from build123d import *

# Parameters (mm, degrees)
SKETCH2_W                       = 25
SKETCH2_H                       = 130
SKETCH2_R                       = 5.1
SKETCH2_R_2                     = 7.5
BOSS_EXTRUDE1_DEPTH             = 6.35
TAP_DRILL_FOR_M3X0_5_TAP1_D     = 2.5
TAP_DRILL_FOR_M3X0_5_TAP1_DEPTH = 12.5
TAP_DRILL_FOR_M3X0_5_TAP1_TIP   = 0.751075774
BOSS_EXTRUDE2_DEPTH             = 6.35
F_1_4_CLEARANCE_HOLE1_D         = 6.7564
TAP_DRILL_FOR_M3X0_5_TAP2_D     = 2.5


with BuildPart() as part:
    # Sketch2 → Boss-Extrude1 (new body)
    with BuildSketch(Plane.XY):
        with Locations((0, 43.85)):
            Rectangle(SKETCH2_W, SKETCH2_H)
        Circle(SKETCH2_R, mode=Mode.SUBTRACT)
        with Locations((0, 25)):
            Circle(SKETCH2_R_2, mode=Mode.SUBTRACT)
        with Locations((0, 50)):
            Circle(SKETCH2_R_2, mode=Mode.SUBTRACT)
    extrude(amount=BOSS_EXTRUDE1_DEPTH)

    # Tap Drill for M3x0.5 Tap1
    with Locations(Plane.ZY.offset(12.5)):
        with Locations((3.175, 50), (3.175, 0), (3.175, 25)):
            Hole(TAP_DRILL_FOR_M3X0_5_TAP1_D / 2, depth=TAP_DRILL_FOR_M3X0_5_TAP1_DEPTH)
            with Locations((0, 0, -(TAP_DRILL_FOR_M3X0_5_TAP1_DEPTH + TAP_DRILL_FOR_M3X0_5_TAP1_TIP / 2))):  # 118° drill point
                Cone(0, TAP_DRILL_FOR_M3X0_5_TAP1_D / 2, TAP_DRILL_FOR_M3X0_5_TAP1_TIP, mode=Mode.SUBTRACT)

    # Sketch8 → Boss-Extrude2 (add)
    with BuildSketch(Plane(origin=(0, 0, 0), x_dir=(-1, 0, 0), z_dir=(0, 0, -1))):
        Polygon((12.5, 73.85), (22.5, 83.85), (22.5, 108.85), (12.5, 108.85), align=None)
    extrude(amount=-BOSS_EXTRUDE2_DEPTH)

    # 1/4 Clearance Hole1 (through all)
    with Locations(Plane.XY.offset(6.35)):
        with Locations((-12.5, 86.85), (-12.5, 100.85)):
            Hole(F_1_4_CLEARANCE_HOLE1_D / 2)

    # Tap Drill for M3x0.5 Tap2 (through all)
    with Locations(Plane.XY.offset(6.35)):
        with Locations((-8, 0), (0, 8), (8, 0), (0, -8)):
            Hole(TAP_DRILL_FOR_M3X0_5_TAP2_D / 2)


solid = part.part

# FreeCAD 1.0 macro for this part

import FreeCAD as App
import Part
import Sketcher

V = App.Vector


def add_polygon(sketch, points):
    """Adds a closed chain of lines whose ends are joined by coincident constraints."""
    first, n = sketch.GeometryCount, len(points)
    for a, b in zip(points, points[1:] + points[:1]):
        sketch.addGeometry(Part.LineSegment(App.Vector(*a, 0), App.Vector(*b, 0)), False)
    for i in range(n):
        sketch.addConstraint(Sketcher.Constraint("Coincident", first + i, 2, first + (i + 1) % n, 1))

doc = App.newDocument("Part")
body = doc.addObject("PartDesign::Body", "Body")

sketch1 = body.newObject("Sketcher::SketchObject", "Sketch")
sketch1.AttachmentSupport = (doc.getObject("XY_Plane"), [""])
sketch1.MapMode = "FlatFace"
add_polygon(sketch1, [(-12, 109), (-12, -21), (12, -21), (12, 109)])
sketch1.addGeometry(Part.Circle(V(0, 0, 0), V(0, 0, 1), 5), False)
sketch1.addGeometry(Part.Circle(V(0, 25, 0), V(0, 0, 1), 8), False)
sketch1.addGeometry(Part.Circle(V(0, 50, 0), V(0, 0, 1), 8), False)
sketch1.addConstraint(Sketcher.Constraint("Vertical", 0))
sketch1.addConstraint(Sketcher.Constraint("Horizontal", 1))
sketch1.addConstraint(Sketcher.Constraint("Vertical", 2))
sketch1.addConstraint(Sketcher.Constraint("Horizontal", 3))
sketch1.addConstraint(Sketcher.Constraint("Coincident", 4, 3, -1, 1))
sketch1.addConstraint(Sketcher.Constraint("Equal", 5, 6))
sketch1.addConstraint(Sketcher.Constraint("PointOnObject", 5, 3, -2))
sketch1.addConstraint(Sketcher.Constraint("PointOnObject", 6, 3, -2))
sketch1.addConstraint(Sketcher.Constraint("Diameter", 5, 15.0))
sketch1.addConstraint(Sketcher.Constraint("Diameter", 4, 10.2))
sketch1.addConstraint(Sketcher.Constraint("DistanceX", 1, 1, 1, 2, 25.0))
sketch1.addConstraint(Sketcher.Constraint("DistanceY", 0, 2, 0, 1, 130.0))
sketch1.addConstraint(Sketcher.Constraint("DistanceY", -1, 1, 5, 3, 25.0))
sketch1.addConstraint(Sketcher.Constraint("DistanceY", -1, 1, 6, 3, 50.0))
sketch1.addConstraint(Sketcher.Constraint("DistanceX", 0, 2, -1, 1, 12.5))
sketch1.addConstraint(Sketcher.Constraint("DistanceY", 0, 2, -1, 1, 21.15))
pad1 = body.newObject("PartDesign::Pad", "Pad")
pad1.Profile = sketch1
pad1.Length = 6.35

sketch2 = body.newObject("Sketcher::SketchObject", "Sketch001")
sketch2.AttachmentSupport = (doc.getObject("YZ_Plane"), [""])
sketch2.MapMode = "FlatFace"
sketch2.AttachmentOffset = App.Placement(V(0, 0, -12.5), App.Rotation())
sketch2.addGeometry(Part.Circle(V(50, 3.2, 0), V(0, 0, 1), 1.2), False)
sketch2.addGeometry(Part.Circle(V(0, 3.2, 0), V(0, 0, 1), 1.2), False)
sketch2.addGeometry(Part.Circle(V(25, 3.2, 0), V(0, 0, 1), 1.2), False)
sketch2.addConstraint(Sketcher.Constraint("Equal", 0, 1))
sketch2.addConstraint(Sketcher.Constraint("Equal", 1, 2))
sketch2.addConstraint(Sketcher.Constraint("PointOnObject", 1, 3, -2))
sketch2.addConstraint(Sketcher.Constraint("Horizontal", 0, 3, 1, 3))
sketch2.addConstraint(Sketcher.Constraint("Horizontal", 1, 3, 2, 3))
sketch2.addConstraint(Sketcher.Constraint("Diameter", 0, 2.5))
sketch2.addConstraint(Sketcher.Constraint("DistanceX", -1, 1, 0, 3, 50.0))
sketch2.addConstraint(Sketcher.Constraint("DistanceX", -1, 1, 2, 3, 25.0))
sketch2.addConstraint(Sketcher.Constraint("DistanceY", -1, 1, 0, 3, 3.175))
doc.recompute()
hole = body.newObject("PartDesign::Hole", "Hole")
hole.Profile = sketch2
hole.ThreadType = "None"
hole.Diameter = 2.5
hole.DepthType = "Dimension"
hole.Depth = 12.5
hole.DrillPoint = "Angled"
hole.DrillPointAngle = 118
hole.Reversed = True

sketch3 = body.newObject("Sketcher::SketchObject", "Sketch002")
sketch3.AttachmentSupport = (doc.getObject("XY_Plane"), [""])
sketch3.MapMode = "FlatFace"
add_polygon(sketch3, [(-12, 74), (-22, 84), (-22, 109), (-12, 109)])
sketch3.addConstraint(Sketcher.Constraint("Vertical", 1))
sketch3.addConstraint(Sketcher.Constraint("Horizontal", 2))
sketch3.addConstraint(Sketcher.Constraint("Vertical", 3))
sketch3.addConstraint(Sketcher.Constraint("DistanceX", 2, 1, 2, 2, 10.0))
sketch3.addConstraint(Sketcher.Constraint("DistanceY", 1, 1, 1, 2, 25.0))
sketch3.addConstraint(Sketcher.Constraint("DistanceY", 3, 2, 3, 1, 35.0))
sketch3.addConstraint(Sketcher.Constraint("DistanceX", 0, 2, -1, 1, 22.5))
sketch3.addConstraint(Sketcher.Constraint("DistanceY", -1, 1, 0, 2, 83.85))
pad2 = body.newObject("PartDesign::Pad", "Pad001")
pad2.Profile = sketch3
pad2.Length = 6.35

sketch4 = body.newObject("Sketcher::SketchObject", "Sketch003")
sketch4.AttachmentSupport = (doc.getObject("XY_Plane"), [""])
sketch4.MapMode = "FlatFace"
sketch4.AttachmentOffset = App.Placement(V(0, 0, 6.35), App.Rotation())
sketch4.addGeometry(Part.Circle(V(-12.5, 86.8, 0), V(0, 0, 1), 3.4), False)
sketch4.addGeometry(Part.Circle(V(-12.5, 100.8, 0), V(0, 0, 1), 3.4), False)
sketch4.addConstraint(Sketcher.Constraint("Equal", 0, 1))
sketch4.addConstraint(Sketcher.Constraint("Vertical", 0, 3, 1, 3))
sketch4.addConstraint(Sketcher.Constraint("DistanceY", 0, 3, 1, 3, 14.0))
sketch4.addConstraint(Sketcher.Constraint("Diameter", 0, 6.7564))
sketch4.addConstraint(Sketcher.Constraint("DistanceX", 0, 3, -1, 1, 12.5))
sketch4.addConstraint(Sketcher.Constraint("DistanceY", -1, 1, 0, 3, 86.85))
doc.recompute()
hole2 = body.newObject("PartDesign::Hole", "Hole001")
hole2.Profile = sketch4
hole2.ThreadType = "None"
hole2.Diameter = 6.7564
hole2.DepthType = "ThroughAll"

sketch5 = body.newObject("Sketcher::SketchObject", "Sketch004")
sketch5.AttachmentSupport = (doc.getObject("XY_Plane"), [""])
sketch5.MapMode = "FlatFace"
sketch5.AttachmentOffset = App.Placement(V(0, 0, 6.35), App.Rotation())
sketch5.addGeometry(Part.Circle(V(-8, 0, 0), V(0, 0, 1), 1.2), False)
sketch5.addGeometry(Part.Circle(V(0, 8, 0), V(0, 0, 1), 1.2), False)
sketch5.addGeometry(Part.Circle(V(8, 0, 0), V(0, 0, 1), 1.2), False)
sketch5.addGeometry(Part.Circle(V(0, -8, 0), V(0, 0, 1), 1.2), False)
sketch5.addConstraint(Sketcher.Constraint("Equal", 0, 1))
sketch5.addConstraint(Sketcher.Constraint("Equal", 1, 2))
sketch5.addConstraint(Sketcher.Constraint("Equal", 2, 3))
sketch5.addConstraint(Sketcher.Constraint("Symmetric", 0, 3, 2, 3, -1, 1))
sketch5.addConstraint(Sketcher.Constraint("Symmetric", 1, 3, 3, 3, -1, 1))
sketch5.addConstraint(Sketcher.Constraint("PointOnObject", 0, 3, -1))
sketch5.addConstraint(Sketcher.Constraint("PointOnObject", 1, 3, -2))
sketch5.addConstraint(Sketcher.Constraint("Diameter", 0, 2.5))
sketch5.addConstraint(Sketcher.Constraint("DistanceX", 0, 3, -1, 1, 8.0))
sketch5.addConstraint(Sketcher.Constraint("DistanceY", -1, 1, 1, 3, 8.0))
doc.recompute()
hole3 = body.newObject("PartDesign::Hole", "Hole002")
hole3.Profile = sketch5
hole3.ThreadType = "None"
hole3.Diameter = 2.5
hole3.DepthType = "ThroughAll"

doc.recompute()
